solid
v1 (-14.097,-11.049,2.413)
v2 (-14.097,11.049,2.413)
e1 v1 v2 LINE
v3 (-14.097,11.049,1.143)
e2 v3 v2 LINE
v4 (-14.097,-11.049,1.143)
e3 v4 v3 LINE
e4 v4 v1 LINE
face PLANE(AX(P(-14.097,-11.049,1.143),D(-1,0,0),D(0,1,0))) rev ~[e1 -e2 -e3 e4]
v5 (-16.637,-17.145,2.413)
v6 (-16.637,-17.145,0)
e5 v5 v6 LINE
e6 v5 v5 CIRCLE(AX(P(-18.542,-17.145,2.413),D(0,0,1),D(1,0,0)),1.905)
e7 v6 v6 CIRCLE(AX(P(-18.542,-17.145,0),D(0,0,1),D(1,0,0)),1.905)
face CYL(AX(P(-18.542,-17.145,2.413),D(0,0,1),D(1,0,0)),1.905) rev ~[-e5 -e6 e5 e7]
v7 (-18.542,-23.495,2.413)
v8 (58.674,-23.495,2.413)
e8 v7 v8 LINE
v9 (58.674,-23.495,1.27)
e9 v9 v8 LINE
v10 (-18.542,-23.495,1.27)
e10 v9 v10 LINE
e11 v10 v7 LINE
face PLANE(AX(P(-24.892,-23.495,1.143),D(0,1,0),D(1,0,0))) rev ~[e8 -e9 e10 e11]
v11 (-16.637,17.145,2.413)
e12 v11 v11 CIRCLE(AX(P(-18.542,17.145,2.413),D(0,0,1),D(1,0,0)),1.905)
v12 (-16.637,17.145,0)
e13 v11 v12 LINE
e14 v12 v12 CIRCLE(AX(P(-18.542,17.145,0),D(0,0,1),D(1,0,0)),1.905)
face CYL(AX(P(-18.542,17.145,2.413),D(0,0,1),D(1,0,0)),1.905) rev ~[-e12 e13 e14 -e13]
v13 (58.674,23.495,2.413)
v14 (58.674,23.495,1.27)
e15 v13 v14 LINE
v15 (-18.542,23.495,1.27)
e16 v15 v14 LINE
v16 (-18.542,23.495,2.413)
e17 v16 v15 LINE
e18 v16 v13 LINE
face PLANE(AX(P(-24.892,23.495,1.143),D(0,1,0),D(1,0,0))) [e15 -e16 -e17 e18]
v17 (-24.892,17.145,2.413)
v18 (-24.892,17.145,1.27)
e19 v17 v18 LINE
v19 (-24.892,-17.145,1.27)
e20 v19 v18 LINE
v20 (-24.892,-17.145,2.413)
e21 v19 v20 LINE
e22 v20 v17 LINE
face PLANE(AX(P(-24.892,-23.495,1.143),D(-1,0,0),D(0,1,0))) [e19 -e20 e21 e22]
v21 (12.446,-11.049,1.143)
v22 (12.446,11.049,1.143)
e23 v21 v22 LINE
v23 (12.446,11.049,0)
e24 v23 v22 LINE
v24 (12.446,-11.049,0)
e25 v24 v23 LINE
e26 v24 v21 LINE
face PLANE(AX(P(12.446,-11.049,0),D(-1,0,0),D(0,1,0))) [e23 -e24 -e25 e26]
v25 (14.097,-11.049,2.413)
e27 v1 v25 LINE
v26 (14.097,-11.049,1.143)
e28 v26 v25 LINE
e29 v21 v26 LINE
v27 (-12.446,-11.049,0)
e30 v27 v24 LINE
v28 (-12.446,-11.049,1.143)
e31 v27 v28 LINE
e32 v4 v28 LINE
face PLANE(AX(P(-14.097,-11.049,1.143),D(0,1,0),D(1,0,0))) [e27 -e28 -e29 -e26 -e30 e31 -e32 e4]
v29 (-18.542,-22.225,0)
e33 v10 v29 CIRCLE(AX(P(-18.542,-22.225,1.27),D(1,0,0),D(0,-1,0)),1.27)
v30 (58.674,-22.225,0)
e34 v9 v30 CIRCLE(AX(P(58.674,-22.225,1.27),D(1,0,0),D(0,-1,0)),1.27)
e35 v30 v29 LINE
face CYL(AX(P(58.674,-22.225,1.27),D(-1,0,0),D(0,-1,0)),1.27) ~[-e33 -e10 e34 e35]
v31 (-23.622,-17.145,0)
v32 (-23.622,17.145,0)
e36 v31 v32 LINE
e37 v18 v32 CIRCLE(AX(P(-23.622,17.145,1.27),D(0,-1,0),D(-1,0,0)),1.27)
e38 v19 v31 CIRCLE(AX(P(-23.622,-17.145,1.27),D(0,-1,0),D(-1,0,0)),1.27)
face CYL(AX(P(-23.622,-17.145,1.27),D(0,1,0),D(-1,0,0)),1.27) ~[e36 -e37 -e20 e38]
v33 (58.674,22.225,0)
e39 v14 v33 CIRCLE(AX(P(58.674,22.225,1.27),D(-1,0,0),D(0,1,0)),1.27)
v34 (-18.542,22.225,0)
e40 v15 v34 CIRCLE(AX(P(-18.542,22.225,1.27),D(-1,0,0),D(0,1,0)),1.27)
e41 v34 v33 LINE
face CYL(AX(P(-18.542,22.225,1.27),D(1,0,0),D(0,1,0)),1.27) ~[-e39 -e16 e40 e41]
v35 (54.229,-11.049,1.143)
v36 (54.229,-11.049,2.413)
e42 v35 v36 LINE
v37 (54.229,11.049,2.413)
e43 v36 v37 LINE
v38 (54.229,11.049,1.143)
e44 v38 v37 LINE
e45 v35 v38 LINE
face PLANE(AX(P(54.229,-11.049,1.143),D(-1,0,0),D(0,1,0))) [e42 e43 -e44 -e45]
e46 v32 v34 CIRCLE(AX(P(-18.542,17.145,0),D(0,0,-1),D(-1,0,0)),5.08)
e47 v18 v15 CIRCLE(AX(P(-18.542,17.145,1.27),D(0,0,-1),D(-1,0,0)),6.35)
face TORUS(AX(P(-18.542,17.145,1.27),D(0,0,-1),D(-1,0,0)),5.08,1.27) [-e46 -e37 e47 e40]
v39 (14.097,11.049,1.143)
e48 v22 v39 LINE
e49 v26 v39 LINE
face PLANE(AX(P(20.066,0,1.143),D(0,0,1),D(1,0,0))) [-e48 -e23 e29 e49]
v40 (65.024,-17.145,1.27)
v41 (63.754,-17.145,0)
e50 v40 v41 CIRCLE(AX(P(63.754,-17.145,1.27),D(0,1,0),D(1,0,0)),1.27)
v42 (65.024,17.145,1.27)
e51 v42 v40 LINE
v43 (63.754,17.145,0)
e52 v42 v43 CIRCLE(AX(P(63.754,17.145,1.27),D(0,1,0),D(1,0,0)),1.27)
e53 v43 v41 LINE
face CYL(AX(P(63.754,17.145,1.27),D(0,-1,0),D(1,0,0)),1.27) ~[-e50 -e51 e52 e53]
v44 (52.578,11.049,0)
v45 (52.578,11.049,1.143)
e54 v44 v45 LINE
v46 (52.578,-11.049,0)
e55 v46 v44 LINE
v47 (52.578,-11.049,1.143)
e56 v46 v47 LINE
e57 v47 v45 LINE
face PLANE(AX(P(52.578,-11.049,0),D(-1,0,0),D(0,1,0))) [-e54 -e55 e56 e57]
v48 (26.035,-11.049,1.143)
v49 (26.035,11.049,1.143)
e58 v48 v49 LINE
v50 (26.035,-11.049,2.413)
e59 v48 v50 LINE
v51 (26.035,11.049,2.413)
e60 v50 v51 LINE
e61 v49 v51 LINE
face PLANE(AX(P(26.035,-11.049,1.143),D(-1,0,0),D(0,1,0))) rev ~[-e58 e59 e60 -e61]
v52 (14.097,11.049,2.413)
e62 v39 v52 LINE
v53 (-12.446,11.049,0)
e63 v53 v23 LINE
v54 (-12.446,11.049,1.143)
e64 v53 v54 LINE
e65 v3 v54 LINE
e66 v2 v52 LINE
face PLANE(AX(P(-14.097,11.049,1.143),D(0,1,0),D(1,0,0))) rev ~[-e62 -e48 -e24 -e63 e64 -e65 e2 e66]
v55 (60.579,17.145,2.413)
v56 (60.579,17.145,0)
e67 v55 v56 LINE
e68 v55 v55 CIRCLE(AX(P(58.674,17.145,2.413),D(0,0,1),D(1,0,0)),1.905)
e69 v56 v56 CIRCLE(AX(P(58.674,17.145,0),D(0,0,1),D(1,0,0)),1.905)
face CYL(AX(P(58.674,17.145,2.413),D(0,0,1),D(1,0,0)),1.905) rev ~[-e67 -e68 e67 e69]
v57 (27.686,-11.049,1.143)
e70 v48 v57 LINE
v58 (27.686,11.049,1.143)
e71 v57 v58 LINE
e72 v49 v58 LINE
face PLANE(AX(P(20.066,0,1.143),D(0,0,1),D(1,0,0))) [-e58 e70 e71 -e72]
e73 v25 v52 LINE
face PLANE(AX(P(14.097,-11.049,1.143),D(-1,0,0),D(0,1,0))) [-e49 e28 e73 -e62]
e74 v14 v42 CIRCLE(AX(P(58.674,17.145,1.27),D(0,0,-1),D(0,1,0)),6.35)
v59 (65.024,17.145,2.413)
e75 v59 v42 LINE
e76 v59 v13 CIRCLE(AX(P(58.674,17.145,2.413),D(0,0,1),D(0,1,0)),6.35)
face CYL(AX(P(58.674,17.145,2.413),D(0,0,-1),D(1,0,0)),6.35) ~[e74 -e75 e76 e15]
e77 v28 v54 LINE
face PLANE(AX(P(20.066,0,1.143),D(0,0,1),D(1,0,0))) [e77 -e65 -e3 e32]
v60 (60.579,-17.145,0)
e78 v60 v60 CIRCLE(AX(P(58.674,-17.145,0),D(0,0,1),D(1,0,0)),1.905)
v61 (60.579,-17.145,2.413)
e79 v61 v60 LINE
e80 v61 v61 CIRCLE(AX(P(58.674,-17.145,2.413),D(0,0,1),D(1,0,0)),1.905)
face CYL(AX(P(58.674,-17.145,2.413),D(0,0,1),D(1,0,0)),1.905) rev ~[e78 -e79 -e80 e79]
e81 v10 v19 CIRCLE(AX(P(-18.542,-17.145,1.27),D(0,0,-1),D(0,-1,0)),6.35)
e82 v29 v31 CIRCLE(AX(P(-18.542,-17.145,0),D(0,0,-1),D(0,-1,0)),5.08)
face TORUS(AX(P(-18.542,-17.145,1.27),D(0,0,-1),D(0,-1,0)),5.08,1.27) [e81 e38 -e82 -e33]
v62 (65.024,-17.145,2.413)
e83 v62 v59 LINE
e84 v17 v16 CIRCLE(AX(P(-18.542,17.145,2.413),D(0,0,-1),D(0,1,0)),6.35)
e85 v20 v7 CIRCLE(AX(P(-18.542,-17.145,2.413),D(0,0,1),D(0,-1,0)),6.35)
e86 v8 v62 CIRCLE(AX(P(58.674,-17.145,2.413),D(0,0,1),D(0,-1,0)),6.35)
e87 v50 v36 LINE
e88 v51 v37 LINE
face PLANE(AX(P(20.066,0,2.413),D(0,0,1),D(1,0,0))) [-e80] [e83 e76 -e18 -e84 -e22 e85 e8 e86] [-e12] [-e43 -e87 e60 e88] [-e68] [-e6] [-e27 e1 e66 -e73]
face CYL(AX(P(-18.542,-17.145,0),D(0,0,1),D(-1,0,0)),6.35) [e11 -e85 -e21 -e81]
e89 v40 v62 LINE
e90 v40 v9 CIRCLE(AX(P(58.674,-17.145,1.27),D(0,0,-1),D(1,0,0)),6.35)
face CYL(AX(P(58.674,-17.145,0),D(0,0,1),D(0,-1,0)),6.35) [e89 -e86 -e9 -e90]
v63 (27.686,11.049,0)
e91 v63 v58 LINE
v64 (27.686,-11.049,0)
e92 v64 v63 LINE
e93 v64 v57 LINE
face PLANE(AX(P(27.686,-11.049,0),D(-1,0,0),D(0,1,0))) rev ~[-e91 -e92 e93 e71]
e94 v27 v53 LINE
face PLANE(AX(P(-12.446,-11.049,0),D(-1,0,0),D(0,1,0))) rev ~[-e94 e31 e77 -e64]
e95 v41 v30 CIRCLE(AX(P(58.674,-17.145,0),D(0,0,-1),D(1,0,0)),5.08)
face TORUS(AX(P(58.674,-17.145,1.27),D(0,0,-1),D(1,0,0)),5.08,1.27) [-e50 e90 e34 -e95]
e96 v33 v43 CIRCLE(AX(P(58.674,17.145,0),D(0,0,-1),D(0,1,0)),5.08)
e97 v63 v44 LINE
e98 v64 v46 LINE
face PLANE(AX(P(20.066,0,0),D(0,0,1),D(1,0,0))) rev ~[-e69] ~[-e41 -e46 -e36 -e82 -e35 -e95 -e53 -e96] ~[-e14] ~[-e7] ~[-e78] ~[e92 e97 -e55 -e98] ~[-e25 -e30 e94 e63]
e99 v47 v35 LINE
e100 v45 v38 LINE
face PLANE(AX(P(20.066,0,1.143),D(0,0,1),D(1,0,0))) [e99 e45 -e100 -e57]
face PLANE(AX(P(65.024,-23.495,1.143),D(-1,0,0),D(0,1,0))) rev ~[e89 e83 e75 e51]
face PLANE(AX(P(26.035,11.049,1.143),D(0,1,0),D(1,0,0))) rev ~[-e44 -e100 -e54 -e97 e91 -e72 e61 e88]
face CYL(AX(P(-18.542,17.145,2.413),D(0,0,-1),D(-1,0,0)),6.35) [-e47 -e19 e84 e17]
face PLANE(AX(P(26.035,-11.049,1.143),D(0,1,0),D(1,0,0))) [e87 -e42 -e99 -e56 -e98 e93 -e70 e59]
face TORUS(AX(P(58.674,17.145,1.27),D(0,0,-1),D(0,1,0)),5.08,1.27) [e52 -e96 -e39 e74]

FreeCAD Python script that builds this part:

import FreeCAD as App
import Part
import Sketcher
Q = App.Units.Quantity


def edges_at(feature, points):
    """Names of the edges that pass closest to the given points."""
    edges = feature.Shape.Edges
    near = lambda p: min(range(len(edges)), key=lambda i: edges[i].distToShape(Part.Vertex(*p))[0])
    return sorted({f"Edge{near(p) + 1}" for p in points})


def add_polygon(sketch, points):
    """Adds a closed chain of lines whose ends are joined by coincident constraints."""
    first, n = sketch.GeometryCount, len(points)
    for a, b in zip(points, points[1:] + points[:1]):
        sketch.addGeometry(Part.LineSegment(App.Vector(*a, 0), App.Vector(*b, 0)), False)
    for i in range(n):
        sketch.addConstraint(Sketcher.Constraint("Coincident", first + i, 2, first + (i + 1) % n, 1))

doc = App.newDocument("Part")
body = doc.addObject("PartDesign::Body", "Body")

sketch1 = body.newObject("Sketcher::SketchObject", "Sketch")
sketch1.AttachmentSupport = (doc.getObject("XY_Plane"), [""])
sketch1.MapMode = "FlatFace"
add_polygon(sketch1, [(-25, 23), (-25, -23), (65, -23), (65, 23)])
add_polygon(sketch1, [(12, -11), (-12, -11), (-12, 11), (12, 11)])
add_polygon(sketch1, [(53, -11), (28, -11), (28, 11), (53, 11)])
sketch1.addConstraint(Sketcher.Constraint("Vertical", 0))
sketch1.addConstraint(Sketcher.Constraint("Horizontal", 1))
sketch1.addConstraint(Sketcher.Constraint("Vertical", 2))
sketch1.addConstraint(Sketcher.Constraint("Horizontal", 3))
sketch1.addConstraint(Sketcher.Constraint("Horizontal", 4))
sketch1.addConstraint(Sketcher.Constraint("Vertical", 5))
sketch1.addConstraint(Sketcher.Constraint("Horizontal", 6))
sketch1.addConstraint(Sketcher.Constraint("Vertical", 7))
sketch1.addConstraint(Sketcher.Constraint("Horizontal", 8))
sketch1.addConstraint(Sketcher.Constraint("Vertical", 9))
sketch1.addConstraint(Sketcher.Constraint("Horizontal", 10))
sketch1.addConstraint(Sketcher.Constraint("Vertical", 11))
sketch1.addConstraint(Sketcher.Constraint("Symmetric", 4, 2, 6, 2, -1, 1))
sketch1.addConstraint(Sketcher.Constraint("Horizontal", 7, 2, 8, 2))
sketch1.addConstraint(Sketcher.Constraint("Horizontal", 6, 2, 9, 2))
sketch1.addConstraint(Sketcher.Constraint("Equal", 6, 8))
sketch1.addConstraint(Sketcher.Constraint("DistanceX", 1, 1, 1, 2, Q("3.54 in")))
sketch1.addConstraint(Sketcher.Constraint("DistanceX", 4, 2, 4, 1, Q("0.98 in")))
sketch1.addConstraint(Sketcher.Constraint("DistanceY", 0, 2, 0, 1, Q("1.85 in")))
sketch1.addConstraint(Sketcher.Constraint("DistanceY", 5, 1, 5, 2, Q("0.87 in")))
sketch1.addConstraint(Sketcher.Constraint("DistanceX", 7, 2, 8, 2, Q("0.6 in")))
sketch1.addConstraint(Sketcher.Constraint("DistanceX", 0, 2, -1, 1, Q("0.98 in")))
sketch1.addConstraint(Sketcher.Constraint("DistanceY", 0, 2, 4, 2, Q("0.49 in")))
pad1 = body.newObject("PartDesign::Pad", "Pad")
pad1.Profile = sketch1
pad1.Length = Q("0.045 in")

sketch2 = body.newObject("Sketcher::SketchObject", "Sketch001")
sketch2.AttachmentSupport = (doc.getObject("XY_Plane"), [""])
sketch2.MapMode = "FlatFace"
sketch2.AttachmentOffset = App.Placement(App.Vector(0, 0, 0.045 * 25.4), App.Rotation())
add_polygon(sketch2, [(-25, 23), (-25, -23), (65, -23), (65, 23)])
add_polygon(sketch2, [(14, -11), (-14, -11), (-14, 11), (14, 11)])
add_polygon(sketch2, [(54, -11), (26, -11), (26, 11), (54, 11)])
sketch2.addConstraint(Sketcher.Constraint("Vertical", 0))
sketch2.addConstraint(Sketcher.Constraint("Horizontal", 1))
sketch2.addConstraint(Sketcher.Constraint("Vertical", 2))
sketch2.addConstraint(Sketcher.Constraint("Horizontal", 3))
sketch2.addConstraint(Sketcher.Constraint("Horizontal", 4))
sketch2.addConstraint(Sketcher.Constraint("Vertical", 5))
sketch2.addConstraint(Sketcher.Constraint("Horizontal", 6))
sketch2.addConstraint(Sketcher.Constraint("Vertical", 7))
sketch2.addConstraint(Sketcher.Constraint("Horizontal", 8))
sketch2.addConstraint(Sketcher.Constraint("Vertical", 9))
sketch2.addConstraint(Sketcher.Constraint("Horizontal", 10))
sketch2.addConstraint(Sketcher.Constraint("Vertical", 11))
sketch2.addConstraint(Sketcher.Constraint("Symmetric", 4, 2, 6, 2, -1, 1))
sketch2.addConstraint(Sketcher.Constraint("Horizontal", 7, 2, 8, 2))
sketch2.addConstraint(Sketcher.Constraint("Horizontal", 6, 2, 9, 2))
sketch2.addConstraint(Sketcher.Constraint("Equal", 6, 8))
sketch2.addConstraint(Sketcher.Constraint("DistanceX", 1, 1, 1, 2, Q("3.54 in")))
sketch2.addConstraint(Sketcher.Constraint("DistanceX", 4, 2, 4, 1, Q("1.11 in")))
sketch2.addConstraint(Sketcher.Constraint("DistanceY", 0, 2, 0, 1, Q("1.85 in")))
sketch2.addConstraint(Sketcher.Constraint("DistanceY", 5, 1, 5, 2, Q("0.87 in")))
sketch2.addConstraint(Sketcher.Constraint("DistanceX", 0, 2, -1, 1, Q("0.98 in")))
sketch2.addConstraint(Sketcher.Constraint("DistanceY", 0, 2, 4, 2, Q("0.49 in")))
sketch2.addConstraint(Sketcher.Constraint("DistanceX", 7, 2, 8, 2, Q("0.47 in")))
pad2 = body.newObject("PartDesign::Pad", "Pad001")
pad2.Profile = sketch2
pad2.Length = Q("0.05 in")
doc.recompute()

fillet = body.newObject("PartDesign::Fillet", "Fillet")
fillet.Base = (pad2, edges_at(pad2, [
    (-24.892, -23.495, 1.206),
    (-24.892, 23.495, 1.206),
    (65.024, -23.495, 1.206),
    (65.024, 23.495, 1.206),
]))
fillet.Radius = Q("0.25 in")

sketch3 = body.newObject("Sketcher::SketchObject", "Sketch002")
sketch3.AttachmentSupport = (doc.getObject("XY_Plane"), [""])
sketch3.MapMode = "FlatFace"
sketch3.AttachmentOffset = App.Placement(App.Vector(0, 0, 0.095 * 25.4), App.Rotation())
sketch3.addGeometry(Part.Circle(App.Vector(-18.5, 17.1, 0), App.Vector(0, 0, 1), 1.9), False)
sketch3.addGeometry(Part.Circle(App.Vector(-18.5, -17.1, 0), App.Vector(0, 0, 1), 1.9), False)
sketch3.addGeometry(Part.Circle(App.Vector(58.7, -17.1, 0), App.Vector(0, 0, 1), 1.9), False)
sketch3.addGeometry(Part.Circle(App.Vector(58.7, 17.1, 0), App.Vector(0, 0, 1), 1.9), False)
sketch3.addConstraint(Sketcher.Constraint("Equal", 0, 1))
sketch3.addConstraint(Sketcher.Constraint("Equal", 1, 2))
sketch3.addConstraint(Sketcher.Constraint("Equal", 2, 3))
sketch3.addConstraint(Sketcher.Constraint("Symmetric", 0, 3, 1, 3, -1))
sketch3.addConstraint(Sketcher.Constraint("Symmetric", 2, 3, 3, 3, -1))
sketch3.addConstraint(Sketcher.Constraint("Horizontal", 1, 3, 2, 3))
sketch3.addConstraint(Sketcher.Constraint("Diameter", 0, Q("0.15 in")))
sketch3.addConstraint(Sketcher.Constraint("DistanceX", 0, 3, -1, 1, Q("0.73 in")))
sketch3.addConstraint(Sketcher.Constraint("DistanceX", -1, 1, 2, 3, Q("2.31 in")))
sketch3.addConstraint(Sketcher.Constraint("DistanceY", 1, 3, 0, 3, Q("1.35 in")))
pocket1 = body.newObject("PartDesign::Pocket", "Pocket")
pocket1.Profile = sketch3
pocket1.Type = "ThroughAll"
doc.recompute()

fillet2 = body.newObject("PartDesign::Fillet", "Fillet001")
fillet2.Base = (pocket1, edges_at(pocket1, [(-23.032, 21.635, 0)]))
fillet2.Radius = Q("0.05 in")

doc.recompute()
